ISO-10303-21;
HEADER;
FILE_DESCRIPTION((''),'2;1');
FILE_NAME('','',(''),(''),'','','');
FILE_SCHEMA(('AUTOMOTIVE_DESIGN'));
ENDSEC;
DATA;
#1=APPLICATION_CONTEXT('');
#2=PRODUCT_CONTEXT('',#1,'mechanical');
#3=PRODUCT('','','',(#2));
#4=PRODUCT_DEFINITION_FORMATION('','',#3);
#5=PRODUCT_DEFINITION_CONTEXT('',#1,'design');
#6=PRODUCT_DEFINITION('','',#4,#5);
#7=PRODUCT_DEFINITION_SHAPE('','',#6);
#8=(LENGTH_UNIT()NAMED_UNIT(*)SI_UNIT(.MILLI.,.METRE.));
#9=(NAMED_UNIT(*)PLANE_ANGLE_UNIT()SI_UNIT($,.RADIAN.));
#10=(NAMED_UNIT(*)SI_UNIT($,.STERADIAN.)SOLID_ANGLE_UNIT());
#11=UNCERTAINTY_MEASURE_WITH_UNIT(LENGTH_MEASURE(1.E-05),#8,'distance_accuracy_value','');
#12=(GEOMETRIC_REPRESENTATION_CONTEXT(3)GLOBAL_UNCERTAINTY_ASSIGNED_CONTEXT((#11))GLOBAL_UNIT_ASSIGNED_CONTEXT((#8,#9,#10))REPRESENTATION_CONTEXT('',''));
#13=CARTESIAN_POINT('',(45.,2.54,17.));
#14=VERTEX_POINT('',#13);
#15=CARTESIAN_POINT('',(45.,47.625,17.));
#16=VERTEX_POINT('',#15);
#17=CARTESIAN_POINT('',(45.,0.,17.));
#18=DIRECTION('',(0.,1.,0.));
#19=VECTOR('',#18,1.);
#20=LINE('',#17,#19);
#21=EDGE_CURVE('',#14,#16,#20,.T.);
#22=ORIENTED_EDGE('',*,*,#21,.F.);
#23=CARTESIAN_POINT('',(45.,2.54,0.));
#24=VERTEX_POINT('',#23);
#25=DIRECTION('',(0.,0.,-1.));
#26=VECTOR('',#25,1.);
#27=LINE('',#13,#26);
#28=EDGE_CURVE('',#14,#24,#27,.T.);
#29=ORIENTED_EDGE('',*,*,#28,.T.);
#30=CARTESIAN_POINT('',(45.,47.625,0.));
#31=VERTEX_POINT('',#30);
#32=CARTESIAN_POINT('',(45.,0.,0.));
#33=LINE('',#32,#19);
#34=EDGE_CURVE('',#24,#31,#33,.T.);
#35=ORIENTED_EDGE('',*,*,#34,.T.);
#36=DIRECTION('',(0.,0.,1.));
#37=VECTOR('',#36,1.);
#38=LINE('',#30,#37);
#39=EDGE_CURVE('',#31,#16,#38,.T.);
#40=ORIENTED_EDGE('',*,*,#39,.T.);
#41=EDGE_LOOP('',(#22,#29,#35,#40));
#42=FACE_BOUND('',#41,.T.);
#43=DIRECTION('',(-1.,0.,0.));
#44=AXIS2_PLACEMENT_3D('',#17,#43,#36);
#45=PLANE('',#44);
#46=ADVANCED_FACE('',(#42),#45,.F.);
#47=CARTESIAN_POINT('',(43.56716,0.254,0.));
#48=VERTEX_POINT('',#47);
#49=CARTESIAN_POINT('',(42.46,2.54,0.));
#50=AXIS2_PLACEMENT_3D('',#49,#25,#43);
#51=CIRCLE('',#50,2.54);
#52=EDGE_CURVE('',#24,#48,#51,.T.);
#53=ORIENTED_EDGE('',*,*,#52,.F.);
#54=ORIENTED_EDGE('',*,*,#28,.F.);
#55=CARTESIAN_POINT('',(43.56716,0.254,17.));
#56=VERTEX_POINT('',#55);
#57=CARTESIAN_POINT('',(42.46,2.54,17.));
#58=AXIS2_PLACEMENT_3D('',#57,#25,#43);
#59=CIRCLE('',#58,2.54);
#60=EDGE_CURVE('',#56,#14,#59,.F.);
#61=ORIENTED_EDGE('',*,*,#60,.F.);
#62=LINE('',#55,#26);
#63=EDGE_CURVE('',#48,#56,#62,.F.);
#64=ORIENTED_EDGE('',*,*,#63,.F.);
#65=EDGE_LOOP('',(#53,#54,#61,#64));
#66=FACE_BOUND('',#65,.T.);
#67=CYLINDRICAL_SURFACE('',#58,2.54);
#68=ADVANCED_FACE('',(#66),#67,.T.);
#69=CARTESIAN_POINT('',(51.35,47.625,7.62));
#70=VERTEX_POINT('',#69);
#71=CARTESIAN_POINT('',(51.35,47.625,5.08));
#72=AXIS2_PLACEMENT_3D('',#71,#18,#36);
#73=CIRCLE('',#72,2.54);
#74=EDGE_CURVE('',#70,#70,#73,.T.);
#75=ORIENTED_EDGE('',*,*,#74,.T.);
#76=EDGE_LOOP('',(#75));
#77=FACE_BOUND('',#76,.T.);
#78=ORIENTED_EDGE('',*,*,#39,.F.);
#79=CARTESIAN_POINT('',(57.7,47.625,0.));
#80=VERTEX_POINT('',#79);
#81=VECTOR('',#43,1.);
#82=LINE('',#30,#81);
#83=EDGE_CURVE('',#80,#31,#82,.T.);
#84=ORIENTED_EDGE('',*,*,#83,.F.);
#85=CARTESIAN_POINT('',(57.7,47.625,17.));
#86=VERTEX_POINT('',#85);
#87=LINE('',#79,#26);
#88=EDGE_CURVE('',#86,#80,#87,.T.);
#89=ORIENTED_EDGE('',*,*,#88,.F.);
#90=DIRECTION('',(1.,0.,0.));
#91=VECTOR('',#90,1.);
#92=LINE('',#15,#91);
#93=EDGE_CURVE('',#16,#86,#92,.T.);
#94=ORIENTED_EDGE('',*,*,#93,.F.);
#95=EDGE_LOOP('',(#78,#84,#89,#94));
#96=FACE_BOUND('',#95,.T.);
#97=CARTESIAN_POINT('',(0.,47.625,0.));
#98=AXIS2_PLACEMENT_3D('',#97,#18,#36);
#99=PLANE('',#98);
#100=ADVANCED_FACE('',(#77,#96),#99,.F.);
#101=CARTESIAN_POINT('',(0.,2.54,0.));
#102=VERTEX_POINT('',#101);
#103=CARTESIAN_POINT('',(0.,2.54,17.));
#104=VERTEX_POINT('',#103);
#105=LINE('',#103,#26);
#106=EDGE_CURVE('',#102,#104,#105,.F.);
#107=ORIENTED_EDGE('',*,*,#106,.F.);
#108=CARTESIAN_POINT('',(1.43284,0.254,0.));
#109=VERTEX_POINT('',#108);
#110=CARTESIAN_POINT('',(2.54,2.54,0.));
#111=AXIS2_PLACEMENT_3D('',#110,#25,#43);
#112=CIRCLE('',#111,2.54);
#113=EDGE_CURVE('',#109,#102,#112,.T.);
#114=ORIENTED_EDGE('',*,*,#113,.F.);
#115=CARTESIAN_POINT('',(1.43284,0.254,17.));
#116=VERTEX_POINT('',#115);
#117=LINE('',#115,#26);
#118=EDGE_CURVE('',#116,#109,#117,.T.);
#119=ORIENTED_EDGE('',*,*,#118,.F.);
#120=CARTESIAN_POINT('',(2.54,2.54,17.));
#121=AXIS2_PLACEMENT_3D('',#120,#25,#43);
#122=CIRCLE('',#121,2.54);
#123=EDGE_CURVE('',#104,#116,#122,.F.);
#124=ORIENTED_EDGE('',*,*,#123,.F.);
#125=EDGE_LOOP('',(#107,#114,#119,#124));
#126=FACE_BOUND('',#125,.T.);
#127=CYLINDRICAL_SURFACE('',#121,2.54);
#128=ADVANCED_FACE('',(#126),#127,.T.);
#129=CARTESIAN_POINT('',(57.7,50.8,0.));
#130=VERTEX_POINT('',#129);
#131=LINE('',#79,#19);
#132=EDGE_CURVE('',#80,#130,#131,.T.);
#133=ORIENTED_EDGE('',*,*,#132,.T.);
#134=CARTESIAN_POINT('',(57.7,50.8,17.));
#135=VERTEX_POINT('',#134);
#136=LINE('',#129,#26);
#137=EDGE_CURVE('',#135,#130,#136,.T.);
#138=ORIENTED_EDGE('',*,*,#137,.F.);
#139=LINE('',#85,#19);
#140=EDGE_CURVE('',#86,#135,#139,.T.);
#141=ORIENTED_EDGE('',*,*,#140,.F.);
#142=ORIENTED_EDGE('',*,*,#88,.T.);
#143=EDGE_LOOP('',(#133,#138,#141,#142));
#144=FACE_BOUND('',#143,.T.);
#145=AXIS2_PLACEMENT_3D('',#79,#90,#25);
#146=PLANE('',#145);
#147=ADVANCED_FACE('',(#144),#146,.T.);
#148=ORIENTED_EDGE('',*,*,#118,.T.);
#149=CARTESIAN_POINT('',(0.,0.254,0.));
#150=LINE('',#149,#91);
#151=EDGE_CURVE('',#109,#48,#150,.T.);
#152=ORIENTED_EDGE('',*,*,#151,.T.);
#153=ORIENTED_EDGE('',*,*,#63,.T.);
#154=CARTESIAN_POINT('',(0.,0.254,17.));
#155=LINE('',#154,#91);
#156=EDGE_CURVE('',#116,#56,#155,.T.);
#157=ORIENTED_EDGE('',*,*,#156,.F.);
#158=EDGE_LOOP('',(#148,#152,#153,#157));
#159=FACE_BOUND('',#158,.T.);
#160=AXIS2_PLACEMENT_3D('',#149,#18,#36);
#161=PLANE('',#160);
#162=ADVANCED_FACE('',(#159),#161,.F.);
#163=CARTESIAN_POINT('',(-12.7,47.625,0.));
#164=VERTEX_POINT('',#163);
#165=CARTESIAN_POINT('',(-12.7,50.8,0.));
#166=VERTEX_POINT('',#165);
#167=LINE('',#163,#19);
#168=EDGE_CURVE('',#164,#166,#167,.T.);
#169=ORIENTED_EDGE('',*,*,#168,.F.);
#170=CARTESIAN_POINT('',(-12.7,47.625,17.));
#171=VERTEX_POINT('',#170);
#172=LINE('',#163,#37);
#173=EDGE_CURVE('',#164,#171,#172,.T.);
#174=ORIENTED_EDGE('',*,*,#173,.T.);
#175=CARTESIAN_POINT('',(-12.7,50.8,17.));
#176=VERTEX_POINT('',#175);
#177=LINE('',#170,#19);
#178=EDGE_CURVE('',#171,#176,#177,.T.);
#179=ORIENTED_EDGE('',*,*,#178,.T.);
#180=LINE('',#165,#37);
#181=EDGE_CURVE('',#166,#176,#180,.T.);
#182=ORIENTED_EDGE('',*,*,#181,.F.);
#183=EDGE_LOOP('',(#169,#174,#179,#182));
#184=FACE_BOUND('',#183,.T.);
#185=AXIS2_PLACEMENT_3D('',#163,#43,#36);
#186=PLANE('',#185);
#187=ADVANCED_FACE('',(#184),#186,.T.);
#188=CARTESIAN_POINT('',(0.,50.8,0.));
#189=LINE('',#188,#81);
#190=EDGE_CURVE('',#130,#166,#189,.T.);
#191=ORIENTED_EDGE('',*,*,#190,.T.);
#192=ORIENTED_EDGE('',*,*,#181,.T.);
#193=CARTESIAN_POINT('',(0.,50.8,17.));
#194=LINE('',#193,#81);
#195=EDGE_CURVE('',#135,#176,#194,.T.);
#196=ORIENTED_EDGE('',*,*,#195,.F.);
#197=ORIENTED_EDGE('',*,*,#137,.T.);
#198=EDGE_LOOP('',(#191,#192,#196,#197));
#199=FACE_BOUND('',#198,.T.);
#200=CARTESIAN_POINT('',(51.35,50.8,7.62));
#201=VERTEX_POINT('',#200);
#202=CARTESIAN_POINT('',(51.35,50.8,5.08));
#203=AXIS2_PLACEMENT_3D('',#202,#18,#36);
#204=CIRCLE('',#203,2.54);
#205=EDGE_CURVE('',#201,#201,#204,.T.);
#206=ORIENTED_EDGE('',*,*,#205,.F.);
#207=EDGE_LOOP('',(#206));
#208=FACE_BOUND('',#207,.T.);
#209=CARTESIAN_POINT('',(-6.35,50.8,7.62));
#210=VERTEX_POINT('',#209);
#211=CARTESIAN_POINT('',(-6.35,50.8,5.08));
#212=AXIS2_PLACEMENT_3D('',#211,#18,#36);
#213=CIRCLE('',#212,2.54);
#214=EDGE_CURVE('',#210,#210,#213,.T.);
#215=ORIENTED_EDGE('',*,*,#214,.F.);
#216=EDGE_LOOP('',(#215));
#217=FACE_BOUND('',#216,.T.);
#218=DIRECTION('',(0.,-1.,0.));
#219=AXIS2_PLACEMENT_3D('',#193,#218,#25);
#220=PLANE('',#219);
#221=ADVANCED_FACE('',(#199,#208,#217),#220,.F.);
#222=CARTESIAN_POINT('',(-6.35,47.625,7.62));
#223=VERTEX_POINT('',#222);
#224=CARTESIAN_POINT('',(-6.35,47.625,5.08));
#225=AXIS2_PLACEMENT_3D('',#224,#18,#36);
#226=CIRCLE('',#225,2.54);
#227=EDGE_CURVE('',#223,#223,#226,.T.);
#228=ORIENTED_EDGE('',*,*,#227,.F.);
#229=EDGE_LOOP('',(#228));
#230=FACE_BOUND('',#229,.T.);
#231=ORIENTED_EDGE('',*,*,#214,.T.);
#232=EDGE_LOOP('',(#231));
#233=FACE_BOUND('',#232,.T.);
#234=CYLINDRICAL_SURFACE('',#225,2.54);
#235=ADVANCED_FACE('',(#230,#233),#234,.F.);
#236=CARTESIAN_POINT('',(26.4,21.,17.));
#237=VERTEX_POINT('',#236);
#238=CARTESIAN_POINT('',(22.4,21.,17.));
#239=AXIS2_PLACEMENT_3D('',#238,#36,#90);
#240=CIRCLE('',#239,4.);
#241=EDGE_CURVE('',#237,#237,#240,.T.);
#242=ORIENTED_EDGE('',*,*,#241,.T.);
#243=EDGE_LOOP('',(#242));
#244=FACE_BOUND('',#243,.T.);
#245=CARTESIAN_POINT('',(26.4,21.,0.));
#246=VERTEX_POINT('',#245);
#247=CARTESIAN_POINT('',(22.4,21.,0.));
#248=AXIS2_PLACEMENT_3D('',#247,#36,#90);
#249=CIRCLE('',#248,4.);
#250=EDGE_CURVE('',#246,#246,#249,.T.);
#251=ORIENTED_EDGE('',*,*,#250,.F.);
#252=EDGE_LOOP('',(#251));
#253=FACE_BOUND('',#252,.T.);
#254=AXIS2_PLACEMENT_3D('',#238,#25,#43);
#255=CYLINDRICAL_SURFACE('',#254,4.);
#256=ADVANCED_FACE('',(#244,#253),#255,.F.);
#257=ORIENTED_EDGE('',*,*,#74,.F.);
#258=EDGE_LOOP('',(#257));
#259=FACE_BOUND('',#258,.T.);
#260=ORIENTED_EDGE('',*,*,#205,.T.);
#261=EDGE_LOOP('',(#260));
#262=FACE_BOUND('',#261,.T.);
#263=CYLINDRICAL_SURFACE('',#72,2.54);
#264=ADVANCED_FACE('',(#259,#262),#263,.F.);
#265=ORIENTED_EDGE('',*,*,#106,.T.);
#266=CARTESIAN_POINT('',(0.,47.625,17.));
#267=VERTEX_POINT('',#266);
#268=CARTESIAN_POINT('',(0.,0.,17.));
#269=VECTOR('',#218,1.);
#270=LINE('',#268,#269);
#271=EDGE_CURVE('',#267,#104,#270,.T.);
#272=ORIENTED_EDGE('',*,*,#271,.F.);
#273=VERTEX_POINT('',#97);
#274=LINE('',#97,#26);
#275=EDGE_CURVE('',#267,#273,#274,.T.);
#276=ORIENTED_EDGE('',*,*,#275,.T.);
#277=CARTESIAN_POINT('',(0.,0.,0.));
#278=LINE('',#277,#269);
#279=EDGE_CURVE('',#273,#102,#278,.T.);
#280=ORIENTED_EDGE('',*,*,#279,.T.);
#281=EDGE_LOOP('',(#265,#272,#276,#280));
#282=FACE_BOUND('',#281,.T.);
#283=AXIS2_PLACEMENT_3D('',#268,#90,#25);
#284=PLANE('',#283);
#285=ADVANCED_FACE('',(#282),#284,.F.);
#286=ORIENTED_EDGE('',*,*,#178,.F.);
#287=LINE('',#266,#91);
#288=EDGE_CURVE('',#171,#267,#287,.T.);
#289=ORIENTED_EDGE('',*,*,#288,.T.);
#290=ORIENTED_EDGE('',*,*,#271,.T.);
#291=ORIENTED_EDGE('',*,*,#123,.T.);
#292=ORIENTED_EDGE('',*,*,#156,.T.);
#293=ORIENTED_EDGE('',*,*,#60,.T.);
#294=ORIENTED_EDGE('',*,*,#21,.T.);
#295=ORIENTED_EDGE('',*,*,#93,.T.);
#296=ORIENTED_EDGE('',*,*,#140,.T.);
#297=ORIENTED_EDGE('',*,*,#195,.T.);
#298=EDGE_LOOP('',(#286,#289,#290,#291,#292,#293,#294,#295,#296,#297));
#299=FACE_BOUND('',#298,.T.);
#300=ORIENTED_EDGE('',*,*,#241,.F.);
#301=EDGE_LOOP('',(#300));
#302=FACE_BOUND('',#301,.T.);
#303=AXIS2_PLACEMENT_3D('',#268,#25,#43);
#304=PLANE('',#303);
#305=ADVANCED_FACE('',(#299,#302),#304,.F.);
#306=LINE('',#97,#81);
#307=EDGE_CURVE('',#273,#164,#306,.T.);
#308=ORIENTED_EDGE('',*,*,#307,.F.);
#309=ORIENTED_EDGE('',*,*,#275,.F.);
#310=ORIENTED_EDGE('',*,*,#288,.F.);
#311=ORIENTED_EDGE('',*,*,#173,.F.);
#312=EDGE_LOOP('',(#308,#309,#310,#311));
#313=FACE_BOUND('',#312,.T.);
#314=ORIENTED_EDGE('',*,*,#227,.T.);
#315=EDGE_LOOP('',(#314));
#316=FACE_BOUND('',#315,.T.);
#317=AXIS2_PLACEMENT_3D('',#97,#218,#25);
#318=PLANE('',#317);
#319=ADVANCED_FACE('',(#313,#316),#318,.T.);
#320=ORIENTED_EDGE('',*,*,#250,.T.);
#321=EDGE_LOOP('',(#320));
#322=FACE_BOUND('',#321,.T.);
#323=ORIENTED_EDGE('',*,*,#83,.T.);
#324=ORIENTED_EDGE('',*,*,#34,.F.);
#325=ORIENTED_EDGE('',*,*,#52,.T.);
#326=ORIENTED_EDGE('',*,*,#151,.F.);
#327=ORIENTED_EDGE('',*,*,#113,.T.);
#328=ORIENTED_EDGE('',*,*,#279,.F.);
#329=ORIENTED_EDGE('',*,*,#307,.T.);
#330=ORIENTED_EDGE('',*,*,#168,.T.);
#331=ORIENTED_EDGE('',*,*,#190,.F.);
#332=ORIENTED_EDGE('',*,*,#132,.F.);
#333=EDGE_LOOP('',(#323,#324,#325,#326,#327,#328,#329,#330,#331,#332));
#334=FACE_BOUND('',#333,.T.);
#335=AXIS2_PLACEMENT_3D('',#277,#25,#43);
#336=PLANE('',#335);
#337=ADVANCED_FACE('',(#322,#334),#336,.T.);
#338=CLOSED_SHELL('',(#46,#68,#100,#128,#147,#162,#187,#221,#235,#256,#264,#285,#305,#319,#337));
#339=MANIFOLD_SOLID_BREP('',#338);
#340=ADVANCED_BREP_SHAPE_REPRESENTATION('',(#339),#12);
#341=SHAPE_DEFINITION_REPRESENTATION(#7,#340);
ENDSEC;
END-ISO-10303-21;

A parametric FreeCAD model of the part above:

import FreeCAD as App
import Part
import Sketcher

V = App.Vector
Q = App.Units.Quantity


def edges_at(feature, points):
    """Names of the edges that pass closest to the given points."""
    edges = feature.Shape.Edges
    near = lambda p: min(range(len(edges)), key=lambda i: edges[i].distToShape(Part.Vertex(*p))[0])
    return sorted({f"Edge{near(p) + 1}" for p in points})


def add_polygon(sketch, points):
    """Adds a closed chain of lines whose ends are joined by coincident constraints."""
    first, n = sketch.GeometryCount, len(points)
    for a, b in zip(points, points[1:] + points[:1]):
        sketch.addGeometry(Part.LineSegment(App.Vector(*a, 0), App.Vector(*b, 0)), False)
    for i in range(n):
        sketch.addConstraint(Sketcher.Constraint("Coincident", first + i, 2, first + (i + 1) % n, 1))

doc = App.newDocument("Part")
body = doc.addObject("PartDesign::Body", "Body")

# Sketch on XY plane
sketch1 = body.newObject("Sketcher::SketchObject", "Sketch")
sketch1.AttachmentSupport = (doc.getObject("XY_Plane"), [""])
sketch1.MapMode = "FlatFace"
add_polygon(sketch1, [(0, 50.8), (0, 0), (45, 0), (45, 50.8)])  # lines 0-3
sketch1.addGeometry(Part.Circle(V(22.4, 21, 0), V(0, 0, 1), 4), False)  # 4
sketch1.addConstraint(Sketcher.Constraint("Vertical", 0))
sketch1.addConstraint(Sketcher.Constraint("Horizontal", 1))
sketch1.addConstraint(Sketcher.Constraint("Vertical", 2))
sketch1.addConstraint(Sketcher.Constraint("Horizontal", 3))
sketch1.addConstraint(Sketcher.Constraint("Coincident", 0, 2, -1, 1))
sketch1.addConstraint(Sketcher.Constraint("DistanceY", 0, 2, 0, 1, Q("2 in")))
sketch1.addConstraint(Sketcher.Constraint("Diameter", 4, Q("8 mm")))
sketch1.addConstraint(Sketcher.Constraint("DistanceX", 1, 1, 1, 2, Q("45 mm")))
sketch1.addConstraint(Sketcher.Constraint("DistanceX", -1, 1, 4, 3, Q("22.4 mm")))
sketch1.addConstraint(Sketcher.Constraint("DistanceY", -1, 1, 4, 3, Q("21 mm")))
pad1 = body.newObject("PartDesign::Pad", "Pad")
pad1.Profile = sketch1
pad1.Length = 17
doc.recompute()

fillet = body.newObject("PartDesign::Fillet", "Fillet")
fillet.Base = (pad1, edges_at(pad1, [(45, 0, 8.5), (0, 0, 8.5)]))
fillet.Radius = Q("0.1 in")

# Sketch on YZ plane
sketch2 = body.newObject("Sketcher::SketchObject", "Sketch001")
sketch2.AttachmentSupport = (doc.getObject("YZ_Plane"), [""])
sketch2.MapMode = "FlatFace"
sketch2.AttachmentOffset = App.Placement(V(0, 0, 45), App.Rotation())
add_polygon(sketch2, [(0.25, 17), (0, 17), (0, 0), (0.25, 0)])  # lines 0-3
sketch2.addConstraint(Sketcher.Constraint("Horizontal", 0))
sketch2.addConstraint(Sketcher.Constraint("Vertical", 1))
sketch2.addConstraint(Sketcher.Constraint("Horizontal", 2))
sketch2.addConstraint(Sketcher.Constraint("Vertical", 3))
sketch2.addConstraint(Sketcher.Constraint("Coincident", 1, 2, -1, 1))
sketch2.addConstraint(Sketcher.Constraint("DistanceX", 0, 2, 0, 1, Q("0.01 in")))
sketch2.addConstraint(Sketcher.Constraint("DistanceY", 1, 2, 1, 1, Q("17 mm")))
pocket1 = body.newObject("PartDesign::Pocket", "Pocket")
pocket1.Profile = sketch2
pocket1.Type = "ThroughAll"

# Sketch on XZ plane
sketch3 = body.newObject("Sketcher::SketchObject", "Sketch002")
sketch3.AttachmentSupport = (doc.getObject("XZ_Plane"), [""])
sketch3.MapMode = "FlatFace"
sketch3.AttachmentOffset = App.Placement(V(0, 0, -2 * 25.4), App.Rotation())
add_polygon(sketch3, [(45, 0), (45, 17), (57.7, 17), (57.7, 0)])  # lines 0-3
sketch3.addGeometry(Part.Circle(V(51.4, 5.1, 0), V(0, 0, 1), 2.5), False)  # 4
add_polygon(sketch3, [(-12.7, 0), (-12.7, 17), (0, 17), (0, 0)])  # lines 5-8
sketch3.addGeometry(Part.Circle(V(-6.3, 5.1, 0), V(0, 0, 1), 2.5), False)  # 9
sketch3.addConstraint(Sketcher.Constraint("Vertical", 0))
sketch3.addConstraint(Sketcher.Constraint("Horizontal", 1))
sketch3.addConstraint(Sketcher.Constraint("Vertical", 2))
sketch3.addConstraint(Sketcher.Constraint("Horizontal", 3))
sketch3.addConstraint(Sketcher.Constraint("Vertical", 5))
sketch3.addConstraint(Sketcher.Constraint("Horizontal", 6))
sketch3.addConstraint(Sketcher.Constraint("Vertical", 7))
sketch3.addConstraint(Sketcher.Constraint("Horizontal", 8))
sketch3.addConstraint(Sketcher.Constraint("Coincident", 7, 2, -1, 1))
sketch3.addConstraint(Sketcher.Constraint("Equal", 4, 9))
sketch3.addConstraint(Sketcher.Constraint("PointOnObject", 2, 2, -1))
sketch3.addConstraint(Sketcher.Constraint("Horizontal", 4, 3, 9, 3))
sketch3.addConstraint(Sketcher.Constraint("Horizontal", 1, 2, 5, 2))
sketch3.addConstraint(Sketcher.Constraint("Equal", 3, 6))
sketch3.addConstraint(Sketcher.Constraint("Diameter", 4, Q("0.2 in")))
sketch3.addConstraint(Sketcher.Constraint("DistanceX", 1, 1, 1, 2, Q("0.5 in")))
sketch3.addConstraint(Sketcher.Constraint("DistanceY", -1, 1, 4, 3, Q("0.2 in")))
sketch3.addConstraint(Sketcher.Constraint("DistanceX", 9, 3, -1, 1, Q("0.25 in")))
sketch3.addConstraint(Sketcher.Constraint("DistanceX", 0, 2, 4, 3, Q("0.25 in")))
sketch3.addConstraint(Sketcher.Constraint("DistanceY", 0, 1, 0, 2, Q("17 mm")))
sketch3.addConstraint(Sketcher.Constraint("DistanceX", -1, 1, 4, 3, Q("51.35 mm")))
pad2 = body.newObject("PartDesign::Pad", "Pad001")
pad2.Profile = sketch3
pad2.Length = Q("0.125 in")

doc.recompute()
